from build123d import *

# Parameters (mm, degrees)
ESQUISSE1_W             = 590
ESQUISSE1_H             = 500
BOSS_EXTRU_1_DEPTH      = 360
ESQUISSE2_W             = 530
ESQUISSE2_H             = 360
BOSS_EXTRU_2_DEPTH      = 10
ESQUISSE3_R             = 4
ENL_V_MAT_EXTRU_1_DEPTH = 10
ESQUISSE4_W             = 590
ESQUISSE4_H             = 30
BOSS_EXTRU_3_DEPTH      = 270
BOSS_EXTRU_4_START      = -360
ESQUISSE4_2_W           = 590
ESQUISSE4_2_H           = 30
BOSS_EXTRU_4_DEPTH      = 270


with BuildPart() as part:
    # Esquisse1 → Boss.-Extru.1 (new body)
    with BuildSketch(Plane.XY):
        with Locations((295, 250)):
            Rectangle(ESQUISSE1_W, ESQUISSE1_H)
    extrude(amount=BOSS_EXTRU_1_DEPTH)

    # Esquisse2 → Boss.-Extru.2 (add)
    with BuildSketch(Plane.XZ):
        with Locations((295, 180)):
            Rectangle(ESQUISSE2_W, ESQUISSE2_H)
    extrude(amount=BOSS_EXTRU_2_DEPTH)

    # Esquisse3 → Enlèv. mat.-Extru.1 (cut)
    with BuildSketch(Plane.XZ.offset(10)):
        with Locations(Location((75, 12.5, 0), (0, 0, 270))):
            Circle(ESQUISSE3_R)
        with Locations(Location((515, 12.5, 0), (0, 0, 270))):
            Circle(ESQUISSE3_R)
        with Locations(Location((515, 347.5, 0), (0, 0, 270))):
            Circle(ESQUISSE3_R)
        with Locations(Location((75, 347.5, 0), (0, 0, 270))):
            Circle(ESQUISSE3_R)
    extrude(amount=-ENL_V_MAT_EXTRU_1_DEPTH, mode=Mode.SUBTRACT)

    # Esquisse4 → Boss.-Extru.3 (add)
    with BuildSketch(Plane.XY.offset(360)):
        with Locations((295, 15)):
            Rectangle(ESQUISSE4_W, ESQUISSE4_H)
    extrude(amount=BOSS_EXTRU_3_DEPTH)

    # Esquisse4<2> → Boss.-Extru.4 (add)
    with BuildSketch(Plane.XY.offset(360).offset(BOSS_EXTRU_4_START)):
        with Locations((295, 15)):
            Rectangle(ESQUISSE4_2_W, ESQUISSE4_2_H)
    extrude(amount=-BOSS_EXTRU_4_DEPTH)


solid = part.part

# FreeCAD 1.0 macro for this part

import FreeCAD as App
import Part
import Sketcher
Q = App.Units.Quantity


def add_polygon(sketch, points):
    """Adds a closed chain of lines whose ends are joined by coincident constraints."""
    first, n = sketch.GeometryCount, len(points)
    for a, b in zip(points, points[1:] + points[:1]):
        sketch.addGeometry(Part.LineSegment(App.Vector(*a, 0), App.Vector(*b, 0)), False)
    for i in range(n):
        sketch.addConstraint(Sketcher.Constraint("Coincident", first + i, 2, first + (i + 1) % n, 1))

doc = App.newDocument("Part")
body = doc.addObject("PartDesign::Body", "Body")

# Sketch on XY plane
sketch1 = body.newObject("Sketcher::SketchObject", "Sketch")
sketch1.AttachmentSupport = (doc.getObject("XY_Plane"), [""])
sketch1.MapMode = "FlatFace"
add_polygon(sketch1, [(0, 500), (0, 0), (590, 0), (590, 500)])  # lines 0-3
sketch1.addConstraint([
    Sketcher.Constraint("Vertical", 0),
    Sketcher.Constraint("Horizontal", 1),
    Sketcher.Constraint("Vertical", 2),
    Sketcher.Constraint("Horizontal", 3),
    Sketcher.Constraint("Coincident", 0, 2, -1, 1),
    Sketcher.Constraint("DistanceX", 1, 1, 1, 2, Q("590 mm")),
    Sketcher.Constraint("DistanceY", 0, 2, 0, 1, Q("500 mm")),
])
pad1 = body.newObject("PartDesign::Pad", "Pad")
pad1.Profile = sketch1
pad1.Length = 360

# Sketch on XZ plane
sketch2 = body.newObject("Sketcher::SketchObject", "Sketch001")
sketch2.AttachmentSupport = (doc.getObject("XZ_Plane"), [""])
sketch2.MapMode = "FlatFace"
add_polygon(sketch2, [(30, 360), (30, 0), (560, 0), (560, 360)])  # lines 0-3
sketch2.addConstraint([
    Sketcher.Constraint("Vertical", 0),
    Sketcher.Constraint("Horizontal", 1),
    Sketcher.Constraint("Vertical", 2),
    Sketcher.Constraint("Horizontal", 3),
    Sketcher.Constraint("PointOnObject", 0, 2, -1),
    Sketcher.Constraint("DistanceX", 1, 1, 1, 2, Q("530 mm")),
    Sketcher.Constraint("DistanceY", 0, 2, 0, 1, Q("360 mm")),
    Sketcher.Constraint("DistanceX", -1, 1, 0, 2, Q("30 mm")),
])
pad2 = body.newObject("PartDesign::Pad", "Pad001")
pad2.Profile = sketch2
pad2.Length = 10

# Sketch on XZ plane
sketch3 = body.newObject("Sketcher::SketchObject", "Sketch002")
sketch3.AttachmentSupport = (doc.getObject("XZ_Plane"), [""])
sketch3.MapMode = "FlatFace"
sketch3.AttachmentOffset = App.Placement(App.Vector(0, 0, 10), App.Rotation())
sketch3.addGeometry([
    Part.Circle(App.Vector(75, 12.5, 0), App.Vector(0, 0, 1), 4),
    Part.Circle(App.Vector(515, 12.5, 0), App.Vector(0, 0, 1), 4),
    Part.Circle(App.Vector(515, 347.5, 0), App.Vector(0, 0, 1), 4),
    Part.Circle(App.Vector(75, 347.5, 0), App.Vector(0, 0, 1), 4),
], False)
sketch3.addConstraint([
    Sketcher.Constraint("Equal", 0, 1),
    Sketcher.Constraint("Equal", 1, 2),
    Sketcher.Constraint("Equal", 2, 3),
    Sketcher.Constraint("Horizontal", 0, 3, 1, 3),
    Sketcher.Constraint("Horizontal", 2, 3, 3, 3),
    Sketcher.Constraint("Vertical", 1, 3, 2, 3),
    Sketcher.Constraint("Vertical", 0, 3, 3, 3),
    Sketcher.Constraint("Diameter", 0, Q("8 mm")),
    Sketcher.Constraint("DistanceX", -1, 1, 0, 3, Q("75 mm")),
    Sketcher.Constraint("DistanceX", -1, 1, 1, 3, Q("515 mm")),
    Sketcher.Constraint("DistanceY", 1, 3, 2, 3, Q("335 mm")),
    Sketcher.Constraint("DistanceY", -1, 1, 0, 3, Q("12.5 mm")),
])
pocket1 = body.newObject("PartDesign::Pocket", "Pocket")
pocket1.Profile = sketch3
pocket1.Length = 10

# Sketch on XY plane
sketch4 = body.newObject("Sketcher::SketchObject", "Sketch003")
sketch4.AttachmentSupport = (doc.getObject("XY_Plane"), [""])
sketch4.MapMode = "FlatFace"
sketch4.AttachmentOffset = App.Placement(App.Vector(0, 0, 360), App.Rotation())
add_polygon(sketch4, [(0, 30), (0, 0), (590, 0), (590, 30)])  # lines 0-3
sketch4.addConstraint([
    Sketcher.Constraint("Vertical", 0),
    Sketcher.Constraint("Horizontal", 1),
    Sketcher.Constraint("Vertical", 2),
    Sketcher.Constraint("Horizontal", 3),
    Sketcher.Constraint("Coincident", 0, 2, -1, 1),
    Sketcher.Constraint("DistanceX", 1, 1, 1, 2, Q("590 mm")),
    Sketcher.Constraint("DistanceY", 0, 2, 0, 1, Q("30 mm")),
])
pad3 = body.newObject("PartDesign::Pad", "Pad002")
pad3.Profile = sketch4
pad3.Length = 270

# Sketch on XY plane
sketch5 = body.newObject("Sketcher::SketchObject", "Sketch004")
sketch5.AttachmentSupport = (doc.getObject("XY_Plane"), [""])
sketch5.MapMode = "FlatFace"
add_polygon(sketch5, [(0, 30), (0, 0), (590, 0), (590, 30)])  # lines 0-3
sketch5.addConstraint([
    Sketcher.Constraint("Vertical", 0),
    Sketcher.Constraint("Horizontal", 1),
    Sketcher.Constraint("Vertical", 2),
    Sketcher.Constraint("Horizontal", 3),
    Sketcher.Constraint("Coincident", 0, 2, -1, 1),
    Sketcher.Constraint("DistanceX", 1, 1, 1, 2, Q("590 mm")),
    Sketcher.Constraint("DistanceY", 0, 2, 0, 1, Q("30 mm")),
])
pad4 = body.newObject("PartDesign::Pad", "Pad003")
pad4.Profile = sketch5
pad4.Length = 270
pad4.Reversed = True

doc.recompute()
